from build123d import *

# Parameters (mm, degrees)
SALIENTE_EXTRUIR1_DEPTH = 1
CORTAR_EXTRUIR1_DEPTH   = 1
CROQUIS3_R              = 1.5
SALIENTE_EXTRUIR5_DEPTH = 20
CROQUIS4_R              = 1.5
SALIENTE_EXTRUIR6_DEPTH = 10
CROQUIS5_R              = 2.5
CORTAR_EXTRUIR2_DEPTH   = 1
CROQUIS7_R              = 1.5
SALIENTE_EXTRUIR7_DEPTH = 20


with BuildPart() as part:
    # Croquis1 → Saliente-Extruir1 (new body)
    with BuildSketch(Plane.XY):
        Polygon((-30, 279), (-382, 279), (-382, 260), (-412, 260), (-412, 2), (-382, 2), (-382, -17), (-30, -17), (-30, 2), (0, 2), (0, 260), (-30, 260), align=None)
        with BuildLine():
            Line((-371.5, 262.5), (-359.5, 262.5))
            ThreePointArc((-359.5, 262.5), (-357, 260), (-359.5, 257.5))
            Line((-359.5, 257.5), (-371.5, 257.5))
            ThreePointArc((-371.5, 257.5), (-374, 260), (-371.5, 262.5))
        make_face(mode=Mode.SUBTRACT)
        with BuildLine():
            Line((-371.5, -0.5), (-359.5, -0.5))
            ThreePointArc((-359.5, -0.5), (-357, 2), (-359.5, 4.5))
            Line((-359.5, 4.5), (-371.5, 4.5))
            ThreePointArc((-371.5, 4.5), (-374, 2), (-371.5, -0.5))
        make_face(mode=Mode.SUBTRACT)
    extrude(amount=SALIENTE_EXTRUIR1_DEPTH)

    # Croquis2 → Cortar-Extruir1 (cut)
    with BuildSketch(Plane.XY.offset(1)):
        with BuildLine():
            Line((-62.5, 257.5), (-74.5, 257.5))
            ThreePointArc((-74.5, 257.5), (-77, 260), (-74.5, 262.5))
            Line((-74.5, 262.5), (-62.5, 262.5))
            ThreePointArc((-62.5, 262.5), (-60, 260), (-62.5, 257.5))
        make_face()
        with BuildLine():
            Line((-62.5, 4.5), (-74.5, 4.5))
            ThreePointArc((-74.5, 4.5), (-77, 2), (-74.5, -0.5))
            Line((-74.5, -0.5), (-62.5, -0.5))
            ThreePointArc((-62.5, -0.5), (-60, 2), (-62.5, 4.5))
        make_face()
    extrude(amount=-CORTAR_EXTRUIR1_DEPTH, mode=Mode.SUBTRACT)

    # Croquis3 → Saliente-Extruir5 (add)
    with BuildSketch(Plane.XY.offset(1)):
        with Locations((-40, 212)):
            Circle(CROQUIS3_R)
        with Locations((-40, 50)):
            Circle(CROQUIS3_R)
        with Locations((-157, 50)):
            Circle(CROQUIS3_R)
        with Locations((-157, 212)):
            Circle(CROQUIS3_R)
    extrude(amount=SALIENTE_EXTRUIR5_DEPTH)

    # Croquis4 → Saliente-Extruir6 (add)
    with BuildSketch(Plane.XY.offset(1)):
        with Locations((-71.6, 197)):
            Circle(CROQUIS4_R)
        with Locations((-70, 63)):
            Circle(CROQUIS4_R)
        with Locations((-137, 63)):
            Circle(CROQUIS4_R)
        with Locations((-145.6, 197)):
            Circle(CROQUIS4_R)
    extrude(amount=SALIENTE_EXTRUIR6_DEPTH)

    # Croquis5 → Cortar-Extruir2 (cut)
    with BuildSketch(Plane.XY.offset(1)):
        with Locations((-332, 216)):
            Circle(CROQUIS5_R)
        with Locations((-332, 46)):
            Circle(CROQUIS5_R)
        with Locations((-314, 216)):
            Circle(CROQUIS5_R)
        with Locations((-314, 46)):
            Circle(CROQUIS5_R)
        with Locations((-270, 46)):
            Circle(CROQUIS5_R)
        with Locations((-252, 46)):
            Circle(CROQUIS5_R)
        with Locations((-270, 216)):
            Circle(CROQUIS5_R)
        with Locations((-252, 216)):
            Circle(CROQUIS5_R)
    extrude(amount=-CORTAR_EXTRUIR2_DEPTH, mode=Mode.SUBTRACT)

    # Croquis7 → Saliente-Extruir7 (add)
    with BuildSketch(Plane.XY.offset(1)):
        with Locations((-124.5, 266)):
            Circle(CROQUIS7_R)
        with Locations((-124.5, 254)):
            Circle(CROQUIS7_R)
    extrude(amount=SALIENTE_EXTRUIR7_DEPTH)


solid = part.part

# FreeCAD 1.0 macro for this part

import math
import FreeCAD as App
import Part
import Sketcher

V = App.Vector


def add_polygon(sketch, points):
    """Adds a closed chain of lines whose ends are joined by coincident constraints."""
    first, n = sketch.GeometryCount, len(points)
    for a, b in zip(points, points[1:] + points[:1]):
        sketch.addGeometry(Part.LineSegment(App.Vector(*a, 0), App.Vector(*b, 0)), False)
    for i in range(n):
        sketch.addConstraint(Sketcher.Constraint("Coincident", first + i, 2, first + (i + 1) % n, 1))

doc = App.newDocument("Part")
body = doc.addObject("PartDesign::Body", "Body")

sketch1 = doc.addObject("Sketcher::SketchObject", "Sketch")
body.addObject(sketch1)
sketch1.AttachmentSupport = (doc.XY_Plane, [""])
sketch1.MapMode = "FlatFace"
add_polygon(sketch1, [(-30, 279), (-382, 279), (-382, 260), (-412, 260), (-412, 2), (-382, 2), (-382, -17), (-30, -17), (-30, 2), (0, 2), (0, 260), (-30, 260)])
sketch1.addGeometry(Part.LineSegment(V(-359.5, -0.5, 0), V(-371.5, -0.5, 0)), False)
sketch1.addGeometry(Part.ArcOfCircle(Part.Circle(V(-371.5, 2, 0), V(0, 0, 1), 2.5), math.radians(90), math.radians(270)), False)
sketch1.addGeometry(Part.LineSegment(V(-371.5, 4.5, 0), V(-359.5, 4.5, 0)), False)
sketch1.addGeometry(Part.ArcOfCircle(Part.Circle(V(-359.5, 2, 0), V(0, 0, 1), 2.5), math.radians(-90), math.radians(90)), False)
sketch1.addGeometry(Part.ArcOfCircle(Part.Circle(V(-371.5, 260, 0), V(0, 0, 1), 2.5), math.radians(90), math.radians(270)), False)
sketch1.addGeometry(Part.LineSegment(V(-371.5, 262.5, 0), V(-359.5, 262.5, 0)), False)
sketch1.addGeometry(Part.ArcOfCircle(Part.Circle(V(-359.5, 260, 0), V(0, 0, 1), 2.5), math.radians(-90), math.radians(90)), False)
sketch1.addGeometry(Part.LineSegment(V(-359.5, 257.5, 0), V(-371.5, 257.5, 0)), False)
sketch1.addConstraint([
    Sketcher.Constraint("Tangent", 12, 2, 13, 2),
    Sketcher.Constraint("Tangent", 13, 1, 14, 1),
    Sketcher.Constraint("Tangent", 14, 2, 15, 2),
    Sketcher.Constraint("Tangent", 15, 1, 12, 1),
    Sketcher.Constraint("Tangent", 16, 1, 17, 1),
    Sketcher.Constraint("Tangent", 17, 2, 18, 2),
    Sketcher.Constraint("Tangent", 18, 1, 19, 1),
    Sketcher.Constraint("Tangent", 19, 2, 16, 2),
    Sketcher.Constraint("Horizontal", 0),
    Sketcher.Constraint("Vertical", 1),
    Sketcher.Constraint("Horizontal", 2),
    Sketcher.Constraint("Vertical", 3),
    Sketcher.Constraint("Horizontal", 4),
    Sketcher.Constraint("Vertical", 5),
    Sketcher.Constraint("Horizontal", 6),
    Sketcher.Constraint("Vertical", 7),
    Sketcher.Constraint("Horizontal", 8),
    Sketcher.Constraint("Vertical", 9),
    Sketcher.Constraint("Horizontal", 10),
    Sketcher.Constraint("Vertical", 11),
    Sketcher.Constraint("Horizontal", 12),
    Sketcher.Constraint("Horizontal", 14),
    Sketcher.Constraint("Horizontal", 17),
    Sketcher.Constraint("Horizontal", 19),
    Sketcher.Constraint("Equal", 15, 16),
    Sketcher.Constraint("PointOnObject", 8, 2, -2),
    Sketcher.Constraint("Horizontal", 18, 3, 1, 2),
    Sketcher.Constraint("Horizontal", 15, 3, 3, 2),
    Sketcher.Constraint("Horizontal", 4, 2, 7, 2),
    Sketcher.Constraint("Horizontal", 2, 2, 9, 2),
    Sketcher.Constraint("Vertical", 13, 3, 16, 3),
    Sketcher.Constraint("Vertical", 15, 3, 18, 3),
    Sketcher.Constraint("Vertical", 1, 2, 4, 2),
    Sketcher.Constraint("Vertical", 7, 2, 10, 2),
    Sketcher.Constraint("Equal", 4, 8),
    Sketcher.Constraint("Equal", 1, 5),
    Sketcher.Constraint("Radius", 13, 2.5),
    Sketcher.Constraint("DistanceX", 0, 2, 0, 1, 352.0),
    Sketcher.Constraint("DistanceX", 2, 2, 2, 1, 30.0),
    Sketcher.Constraint("DistanceX", 12, 2, 12, 1, 12.0),
    Sketcher.Constraint("DistanceY", 1, 2, 1, 1, 19.0),
    Sketcher.Constraint("DistanceY", 3, 2, 3, 1, 258.0),
    Sketcher.Constraint("DistanceY", -1, 1, 13, 3, 2.0),
    Sketcher.Constraint("DistanceX", 13, 3, -1, 1, 371.5),
])
pad1 = doc.addObject("PartDesign::Pad", "Pad")
body.addObject(pad1)
pad1.Profile = sketch1
pad1.Length = 1

sketch2 = doc.addObject("Sketcher::SketchObject", "Sketch001")
body.addObject(sketch2)
sketch2.AttachmentSupport = (doc.XY_Plane, [""])
sketch2.MapMode = "FlatFace"
sketch2.AttachmentOffset = App.Placement(V(0, 0, 1), App.Rotation())
sketch2.addGeometry([
    Part.LineSegment(V(-74.5, 257.5, 0), V(-62.5, 257.5, 0)),
    Part.ArcOfCircle(Part.Circle(V(-62.5, 260, 0), V(0, 0, 1), 2.5), math.radians(-90), math.radians(90)),
    Part.LineSegment(V(-62.5, 262.5, 0), V(-74.5, 262.5, 0)),
    Part.ArcOfCircle(Part.Circle(V(-74.5, 260, 0), V(0, 0, 1), 2.5), math.radians(90), math.radians(270)),
    Part.LineSegment(V(-62.5, 4.5, 0), V(-74.5, 4.5, 0)),
    Part.ArcOfCircle(Part.Circle(V(-74.5, 2, 0), V(0, 0, 1), 2.5), math.radians(90), math.radians(270)),
    Part.LineSegment(V(-74.5, -0.5, 0), V(-62.5, -0.5, 0)),
    Part.ArcOfCircle(Part.Circle(V(-62.5, 2, 0), V(0, 0, 1), 2.5), math.radians(-90), math.radians(90)),
], False)
sketch2.addConstraint([
    Sketcher.Constraint("Tangent", 0, 2, 1, 1),
    Sketcher.Constraint("Tangent", 1, 2, 2, 1),
    Sketcher.Constraint("Tangent", 2, 2, 3, 1),
    Sketcher.Constraint("Tangent", 3, 2, 0, 1),
    Sketcher.Constraint("Tangent", 4, 2, 5, 1),
    Sketcher.Constraint("Tangent", 5, 2, 6, 1),
    Sketcher.Constraint("Tangent", 6, 2, 7, 1),
    Sketcher.Constraint("Tangent", 7, 2, 4, 1),
    Sketcher.Constraint("Horizontal", 0),
    Sketcher.Constraint("Horizontal", 2),
    Sketcher.Constraint("Horizontal", 4),
    Sketcher.Constraint("Horizontal", 6),
    Sketcher.Constraint("Equal", 3, 5),
    Sketcher.Constraint("Vertical", 3, 3, 5, 3),
    Sketcher.Constraint("Vertical", 1, 3, 7, 3),
    Sketcher.Constraint("Radius", 1, 2.5),
    Sketcher.Constraint("DistanceX", 0, 1, 0, 2, 12.0),
    Sketcher.Constraint("DistanceY", -1, 1, 1, 3, 260.0),
    Sketcher.Constraint("DistanceY", -1, 1, 5, 3, 2.0),
    Sketcher.Constraint("DistanceX", 1, 3, -1, 1, 62.5),
])
pocket1 = doc.addObject("PartDesign::Pocket", "Pocket")
body.addObject(pocket1)
pocket1.Profile = sketch2
pocket1.Length = 1

sketch3 = doc.addObject("Sketcher::SketchObject", "Sketch002")
body.addObject(sketch3)
sketch3.AttachmentSupport = (doc.XY_Plane, [""])
sketch3.MapMode = "FlatFace"
sketch3.AttachmentOffset = App.Placement(V(0, 0, 1), App.Rotation())
sketch3.addGeometry([
    Part.Circle(V(-40, 212, 0), V(0, 0, 1), 1.5),
    Part.Circle(V(-40, 50, 0), V(0, 0, 1), 1.5),
    Part.Circle(V(-157, 50, 0), V(0, 0, 1), 1.5),
    Part.Circle(V(-157, 212, 0), V(0, 0, 1), 1.5),
], False)
sketch3.addConstraint([
    Sketcher.Constraint("Equal", 0, 1),
    Sketcher.Constraint("Equal", 1, 2),
    Sketcher.Constraint("Equal", 2, 3),
    Sketcher.Constraint("Horizontal", 1, 3, 2, 3),
    Sketcher.Constraint("Horizontal", 0, 3, 3, 3),
    Sketcher.Constraint("Vertical", 0, 3, 1, 3),
    Sketcher.Constraint("Vertical", 2, 3, 3, 3),
    Sketcher.Constraint("Diameter", 0, 3.0),
    Sketcher.Constraint("DistanceX", 0, 3, -1, 1, 40.0),
    Sketcher.Constraint("DistanceY", -1, 1, 0, 3, 212.0),
    Sketcher.Constraint("DistanceY", -1, 1, 1, 3, 50.0),
    Sketcher.Constraint("DistanceX", 2, 3, -1, 1, 157.0),
])
pad2 = doc.addObject("PartDesign::Pad", "Pad001")
body.addObject(pad2)
pad2.Profile = sketch3
pad2.Length = 20

sketch4 = doc.addObject("Sketcher::SketchObject", "Sketch003")
body.addObject(sketch4)
sketch4.AttachmentSupport = (doc.XY_Plane, [""])
sketch4.MapMode = "FlatFace"
sketch4.AttachmentOffset = App.Placement(V(0, 0, 1), App.Rotation())
sketch4.addGeometry([
    Part.Circle(V(-71.6, 197, 0), V(0, 0, 1), 1.5),
    Part.Circle(V(-70, 63, 0), V(0, 0, 1), 1.5),
    Part.Circle(V(-137, 63, 0), V(0, 0, 1), 1.5),
    Part.Circle(V(-145.6, 197, 0), V(0, 0, 1), 1.5),
], False)
sketch4.addConstraint([
    Sketcher.Constraint("Equal", 0, 1),
    Sketcher.Constraint("Equal", 1, 2),
    Sketcher.Constraint("Equal", 2, 3),
    Sketcher.Constraint("Horizontal", 1, 3, 2, 3),
    Sketcher.Constraint("Horizontal", 0, 3, 3, 3),
    Sketcher.Constraint("Diameter", 0, 3.0),
    Sketcher.Constraint("DistanceY", -1, 1, 0, 3, 197.0),
    Sketcher.Constraint("DistanceX", 1, 3, -1, 1, 70.0),
    Sketcher.Constraint("DistanceY", -1, 1, 1, 3, 63.0),
    Sketcher.Constraint("DistanceX", 2, 3, -1, 1, 137.0),
    Sketcher.Constraint("DistanceX", 3, 3, 0, 3, 74.0),
    Sketcher.Constraint("DistanceX", 0, 3, -1, 1, 71.6),
])
pad3 = doc.addObject("PartDesign::Pad", "Pad002")
body.addObject(pad3)
pad3.Profile = sketch4
pad3.Length = 10

sketch5 = doc.addObject("Sketcher::SketchObject", "Sketch004")
body.addObject(sketch5)
sketch5.AttachmentSupport = (doc.XY_Plane, [""])
sketch5.MapMode = "FlatFace"
sketch5.AttachmentOffset = App.Placement(V(0, 0, 1), App.Rotation())
sketch5.addGeometry([
    Part.Circle(V(-332, 216, 0), V(0, 0, 1), 2.5),
    Part.Circle(V(-332, 46, 0), V(0, 0, 1), 2.5),
    Part.Circle(V(-314, 216, 0), V(0, 0, 1), 2.5),
    Part.Circle(V(-314, 46, 0), V(0, 0, 1), 2.5),
    Part.Circle(V(-270, 46, 0), V(0, 0, 1), 2.5),
    Part.Circle(V(-252, 46, 0), V(0, 0, 1), 2.5),
    Part.Circle(V(-270, 216, 0), V(0, 0, 1), 2.5),
    Part.Circle(V(-252, 216, 0), V(0, 0, 1), 2.5),
], False)
sketch5.addConstraint([
    Sketcher.Constraint("Equal", 0, 1),
    Sketcher.Constraint("Equal", 1, 2),
    Sketcher.Constraint("Equal", 2, 3),
    Sketcher.Constraint("Equal", 3, 4),
    Sketcher.Constraint("Equal", 4, 5),
    Sketcher.Constraint("Equal", 5, 6),
    Sketcher.Constraint("Equal", 6, 7),
    Sketcher.Constraint("Horizontal", 0, 3, 2, 3),
    Sketcher.Constraint("Horizontal", 1, 3, 3, 3),
    Sketcher.Constraint("Horizontal", 3, 3, 4, 3),
    Sketcher.Constraint("Horizontal", 4, 3, 5, 3),
    Sketcher.Constraint("Horizontal", 2, 3, 6, 3),
    Sketcher.Constraint("Horizontal", 6, 3, 7, 3),
    Sketcher.Constraint("Vertical", 0, 3, 1, 3),
    Sketcher.Constraint("Vertical", 2, 3, 3, 3),
    Sketcher.Constraint("Vertical", 4, 3, 6, 3),
    Sketcher.Constraint("Vertical", 5, 3, 7, 3),
    Sketcher.Constraint("Diameter", 0, 5.0),
    Sketcher.Constraint("DistanceX", 0, 3, -1, 1, 332.0),
    Sketcher.Constraint("DistanceY", -1, 1, 0, 3, 216.0),
    Sketcher.Constraint("DistanceY", -1, 1, 1, 3, 46.0),
    Sketcher.Constraint("DistanceX", 2, 3, -1, 1, 314.0),
    Sketcher.Constraint("DistanceX", 4, 3, -1, 1, 270.0),
    Sketcher.Constraint("DistanceX", 5, 3, -1, 1, 252.0),
])
pocket2 = doc.addObject("PartDesign::Pocket", "Pocket001")
body.addObject(pocket2)
pocket2.Profile = sketch5
pocket2.Length = 1

sketch6 = doc.addObject("Sketcher::SketchObject", "Sketch005")
body.addObject(sketch6)
sketch6.AttachmentSupport = (doc.XY_Plane, [""])
sketch6.MapMode = "FlatFace"
sketch6.AttachmentOffset = App.Placement(V(0, 0, 1), App.Rotation())
sketch6.addGeometry([
    Part.Circle(V(-124.5, 266, 0), V(0, 0, 1), 1.5),
    Part.Circle(V(-124.5, 254, 0), V(0, 0, 1), 1.5),
], False)
sketch6.addConstraint([
    Sketcher.Constraint("Equal", 0, 1),
    Sketcher.Constraint("Vertical", 0, 3, 1, 3),
    Sketcher.Constraint("Diameter", 0, 3.0),
    Sketcher.Constraint("DistanceY", -1, 1, 0, 3, 266.0),
    Sketcher.Constraint("DistanceY", -1, 1, 1, 3, 254.0),
    Sketcher.Constraint("DistanceX", 0, 3, -1, 1, 124.5),
])
pad4 = doc.addObject("PartDesign::Pad", "Pad003")
body.addObject(pad4)
pad4.Profile = sketch6
pad4.Length = 20

doc.recompute()
